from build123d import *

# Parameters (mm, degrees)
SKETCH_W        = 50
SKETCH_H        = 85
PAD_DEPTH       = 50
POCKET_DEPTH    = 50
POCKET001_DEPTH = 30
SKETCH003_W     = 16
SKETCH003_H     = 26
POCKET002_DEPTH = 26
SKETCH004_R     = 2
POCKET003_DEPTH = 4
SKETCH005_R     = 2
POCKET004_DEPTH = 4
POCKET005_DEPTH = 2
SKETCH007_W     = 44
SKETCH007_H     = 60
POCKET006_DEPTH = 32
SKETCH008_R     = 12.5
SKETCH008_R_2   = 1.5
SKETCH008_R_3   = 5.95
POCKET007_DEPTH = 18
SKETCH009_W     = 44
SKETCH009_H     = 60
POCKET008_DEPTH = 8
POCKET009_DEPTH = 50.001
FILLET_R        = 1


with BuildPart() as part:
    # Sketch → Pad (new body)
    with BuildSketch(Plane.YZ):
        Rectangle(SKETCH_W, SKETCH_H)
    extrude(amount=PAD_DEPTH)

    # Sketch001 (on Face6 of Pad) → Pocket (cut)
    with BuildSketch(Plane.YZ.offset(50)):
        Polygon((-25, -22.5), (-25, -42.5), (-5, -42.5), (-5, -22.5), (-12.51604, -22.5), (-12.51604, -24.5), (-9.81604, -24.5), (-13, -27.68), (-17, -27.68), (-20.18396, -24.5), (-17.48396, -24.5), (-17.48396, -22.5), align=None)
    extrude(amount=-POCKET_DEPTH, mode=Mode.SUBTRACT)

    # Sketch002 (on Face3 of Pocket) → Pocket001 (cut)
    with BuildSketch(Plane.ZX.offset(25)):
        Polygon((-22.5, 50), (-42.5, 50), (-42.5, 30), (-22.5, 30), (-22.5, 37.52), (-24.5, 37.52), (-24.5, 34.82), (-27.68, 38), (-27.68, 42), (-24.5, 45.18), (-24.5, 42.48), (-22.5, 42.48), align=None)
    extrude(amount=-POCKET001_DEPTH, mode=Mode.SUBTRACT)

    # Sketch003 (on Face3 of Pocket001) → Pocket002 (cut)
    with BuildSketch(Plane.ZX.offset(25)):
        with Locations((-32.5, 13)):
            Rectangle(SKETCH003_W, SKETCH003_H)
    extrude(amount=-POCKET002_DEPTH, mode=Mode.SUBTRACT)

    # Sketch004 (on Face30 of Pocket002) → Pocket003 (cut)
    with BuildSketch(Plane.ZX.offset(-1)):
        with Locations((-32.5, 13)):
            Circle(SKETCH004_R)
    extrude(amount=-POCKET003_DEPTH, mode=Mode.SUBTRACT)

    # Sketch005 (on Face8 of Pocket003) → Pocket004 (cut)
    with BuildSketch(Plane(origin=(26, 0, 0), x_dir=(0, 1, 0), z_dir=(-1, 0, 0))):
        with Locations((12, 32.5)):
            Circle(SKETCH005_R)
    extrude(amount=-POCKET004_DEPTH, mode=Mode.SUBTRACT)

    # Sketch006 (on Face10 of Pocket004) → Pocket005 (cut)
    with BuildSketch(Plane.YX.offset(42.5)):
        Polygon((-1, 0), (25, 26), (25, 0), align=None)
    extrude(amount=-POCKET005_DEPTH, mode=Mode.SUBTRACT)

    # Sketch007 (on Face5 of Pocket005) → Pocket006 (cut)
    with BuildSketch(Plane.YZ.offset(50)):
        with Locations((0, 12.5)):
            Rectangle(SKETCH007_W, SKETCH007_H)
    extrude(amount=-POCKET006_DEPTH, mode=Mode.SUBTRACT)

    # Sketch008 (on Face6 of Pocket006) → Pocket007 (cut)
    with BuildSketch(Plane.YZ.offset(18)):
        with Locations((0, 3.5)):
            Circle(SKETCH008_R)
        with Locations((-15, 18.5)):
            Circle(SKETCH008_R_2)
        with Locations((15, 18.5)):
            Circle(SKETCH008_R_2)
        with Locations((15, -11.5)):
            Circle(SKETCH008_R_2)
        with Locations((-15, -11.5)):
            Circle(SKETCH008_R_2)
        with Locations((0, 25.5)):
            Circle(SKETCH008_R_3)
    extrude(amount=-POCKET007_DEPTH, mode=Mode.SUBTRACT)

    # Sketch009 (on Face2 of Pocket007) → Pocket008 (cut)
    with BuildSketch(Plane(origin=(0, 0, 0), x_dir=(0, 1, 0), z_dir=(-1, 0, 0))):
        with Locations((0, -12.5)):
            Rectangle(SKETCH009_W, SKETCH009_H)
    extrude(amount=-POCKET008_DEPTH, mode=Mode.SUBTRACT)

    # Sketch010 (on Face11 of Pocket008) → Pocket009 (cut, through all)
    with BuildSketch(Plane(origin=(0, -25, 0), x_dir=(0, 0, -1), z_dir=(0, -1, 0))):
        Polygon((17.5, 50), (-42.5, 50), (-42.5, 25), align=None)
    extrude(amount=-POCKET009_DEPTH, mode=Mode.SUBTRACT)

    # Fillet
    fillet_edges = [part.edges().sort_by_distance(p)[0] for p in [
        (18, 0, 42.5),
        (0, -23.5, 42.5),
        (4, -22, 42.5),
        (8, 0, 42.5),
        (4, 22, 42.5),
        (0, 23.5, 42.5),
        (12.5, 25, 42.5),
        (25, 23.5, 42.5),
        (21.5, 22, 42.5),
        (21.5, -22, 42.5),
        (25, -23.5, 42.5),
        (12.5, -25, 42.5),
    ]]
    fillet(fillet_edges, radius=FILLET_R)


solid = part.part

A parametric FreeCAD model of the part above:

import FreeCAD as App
import Part
import Sketcher
Q = App.Units.Quantity


def edges_at(feature, points):
    """Names of the edges that pass closest to the given points."""
    edges = feature.Shape.Edges
    near = lambda p: min(range(len(edges)), key=lambda i: edges[i].distToShape(Part.Vertex(*p))[0])
    return sorted({f"Edge{near(p) + 1}" for p in points})


def add_polygon(sketch, points):
    """Adds a closed chain of lines whose ends are joined by coincident constraints."""
    first, n = sketch.GeometryCount, len(points)
    for a, b in zip(points, points[1:] + points[:1]):
        sketch.addGeometry(Part.LineSegment(App.Vector(*a, 0), App.Vector(*b, 0)), False)
    for i in range(n):
        sketch.addConstraint(Sketcher.Constraint("Coincident", first + i, 2, first + (i + 1) % n, 1))

doc = App.newDocument("Part")
body = doc.addObject("PartDesign::Body", "Body")

# Sketch on YZ plane
sketch1 = body.newObject("Sketcher::SketchObject", "Sketch")
sketch1.AttachmentSupport = (doc.getObject("YZ_Plane"), [""])
sketch1.MapMode = "FlatFace"
add_polygon(sketch1, [(-25, 42.5), (-25, -42.5), (25, -42.5), (25, 42.5)])  # lines 0-3
sketch1.addConstraint(Sketcher.Constraint("Vertical", 0))
sketch1.addConstraint(Sketcher.Constraint("Horizontal", 1))
sketch1.addConstraint(Sketcher.Constraint("Vertical", 2))
sketch1.addConstraint(Sketcher.Constraint("Horizontal", 3))
sketch1.addConstraint(Sketcher.Constraint("Symmetric", 0, 2, 2, 2, -1, 1))
sketch1.addConstraint(Sketcher.Constraint("DistanceX", 1, 1, 1, 2, Q("50 mm")))
sketch1.addConstraint(Sketcher.Constraint("DistanceY", 0, 2, 0, 1, Q("85 mm")))
pad1 = body.newObject("PartDesign::Pad", "Pad")
pad1.Profile = sketch1
pad1.Length = 50

# Sketch on YZ plane
sketch2 = body.newObject("Sketcher::SketchObject", "Sketch001")
sketch2.AttachmentSupport = (doc.getObject("YZ_Plane"), [""])
sketch2.MapMode = "FlatFace"
sketch2.AttachmentOffset = App.Placement(App.Vector(0, 0, 50), App.Rotation())
add_polygon(sketch2, [(-25, -22.5), (-25, -42.5), (-5, -42.5), (-5, -22.5), (-12.51604, -22.5), (-12.51604, -24.5), (-9.81604, -24.5), (-13, -27.68), (-17, -27.68), (-20.18396, -24.5), (-17.48396, -24.5), (-17.48396, -22.5)])  # lines 0-11
sketch2.addConstraint(Sketcher.Constraint("Vertical", 0))
sketch2.addConstraint(Sketcher.Constraint("Horizontal", 1))
sketch2.addConstraint(Sketcher.Constraint("Vertical", 2))
sketch2.addConstraint(Sketcher.Constraint("Horizontal", 3))
sketch2.addConstraint(Sketcher.Constraint("Vertical", 4))
sketch2.addConstraint(Sketcher.Constraint("Horizontal", 5))
sketch2.addConstraint(Sketcher.Constraint("Horizontal", 7))
sketch2.addConstraint(Sketcher.Constraint("Horizontal", 9))
sketch2.addConstraint(Sketcher.Constraint("Vertical", 10))
sketch2.addConstraint(Sketcher.Constraint("Horizontal", 11))
sketch2.addConstraint(Sketcher.Constraint("Horizontal", 5, 2, 8, 2))
sketch2.addConstraint(Sketcher.Constraint("Horizontal", 3, 2, 10, 2))
sketch2.addConstraint(Sketcher.Constraint("Equal", 5, 9))
sketch2.addConstraint(Sketcher.Constraint("Equal", 3, 11))
sketch2.addConstraint(Sketcher.Constraint("Equal", 1, 0))
sketch2.addConstraint(Sketcher.Constraint("Equal", 6, 8))
sketch2.addConstraint(Sketcher.Constraint("DistanceX", 1, 1, 1, 2, Q("20 mm")))
sketch2.addConstraint(Sketcher.Constraint("DistanceX", 7, 2, 7, 1, Q("4 mm")))
sketch2.addConstraint(Sketcher.Constraint("DistanceY", 4, 2, 4, 1, Q("2 mm")))
sketch2.addConstraint(Sketcher.Constraint("DistanceX", 5, 1, 5, 2, Q("2.7 mm")))
sketch2.addConstraint(Sketcher.Constraint("DistanceX", 0, 2, -1, 1, Q("25 mm")))
sketch2.addConstraint(Sketcher.Constraint("Distance", 6, Q("4.5 mm")))
sketch2.addConstraint(Sketcher.Constraint("DistanceY", 0, 2, -1, 1, Q("42.5 mm")))
sketch2.addConstraint(Sketcher.Constraint("DistanceY", 6, 2, -1, 1, Q("27.68 mm")))
pocket1 = body.newObject("PartDesign::Pocket", "Pocket")
pocket1.Profile = sketch2
pocket1.Length = 50

# Sketch on XZ plane
sketch3 = body.newObject("Sketcher::SketchObject", "Sketch002")
sketch3.AttachmentSupport = (doc.getObject("XZ_Plane"), [""])
sketch3.MapMode = "FlatFace"
sketch3.AttachmentOffset = App.Placement(App.Vector(0, 0, -25), App.Rotation())
add_polygon(sketch3, [(50, -22.5), (50, -42.5), (30, -42.5), (30, -22.5), (37.52, -22.5), (37.52, -24.5), (34.82, -24.5), (38, -27.68), (42, -27.68), (45.18, -24.5), (42.48, -24.5), (42.48, -22.5)])  # lines 0-11
sketch3.addConstraint(Sketcher.Constraint("Vertical", 0))
sketch3.addConstraint(Sketcher.Constraint("Horizontal", 1))
sketch3.addConstraint(Sketcher.Constraint("Vertical", 2))
sketch3.addConstraint(Sketcher.Constraint("Horizontal", 3))
sketch3.addConstraint(Sketcher.Constraint("Vertical", 4))
sketch3.addConstraint(Sketcher.Constraint("Horizontal", 5))
sketch3.addConstraint(Sketcher.Constraint("Horizontal", 7))
sketch3.addConstraint(Sketcher.Constraint("Horizontal", 9))
sketch3.addConstraint(Sketcher.Constraint("Vertical", 10))
sketch3.addConstraint(Sketcher.Constraint("Horizontal", 11))
sketch3.addConstraint(Sketcher.Constraint("Perpendicular", 6, 8))
sketch3.addConstraint(Sketcher.Constraint("Horizontal", 5, 2, 8, 2))
sketch3.addConstraint(Sketcher.Constraint("Horizontal", 3, 2, 10, 2))
sketch3.addConstraint(Sketcher.Constraint("Equal", 5, 9))
sketch3.addConstraint(Sketcher.Constraint("Equal", 3, 11))
sketch3.addConstraint(Sketcher.Constraint("Equal", 1, 0))
sketch3.addConstraint(Sketcher.Constraint("Equal", 6, 8))
sketch3.addConstraint(Sketcher.Constraint("DistanceX", 1, 2, 1, 1, Q("20 mm")))
sketch3.addConstraint(Sketcher.Constraint("DistanceX", 7, 1, 7, 2, Q("4 mm")))
sketch3.addConstraint(Sketcher.Constraint("DistanceY", 4, 2, 4, 1, Q("2 mm")))
sketch3.addConstraint(Sketcher.Constraint("DistanceX", 5, 2, 5, 1, Q("2.7 mm")))
sketch3.addConstraint(Sketcher.Constraint("DistanceX", -1, 1, 0, 2, Q("50 mm")))
sketch3.addConstraint(Sketcher.Constraint("DistanceX", 3, 1, 3, 2, Q("7.52 mm")))
sketch3.addConstraint(Sketcher.Constraint("DistanceY", 0, 2, -1, 1, Q("42.5 mm")))
pocket2 = body.newObject("PartDesign::Pocket", "Pocket001")
pocket2.Profile = sketch3
pocket2.Length = 30
pocket2.Reversed = True

# Sketch on XZ plane
sketch4 = body.newObject("Sketcher::SketchObject", "Sketch003")
sketch4.AttachmentSupport = (doc.getObject("XZ_Plane"), [""])
sketch4.MapMode = "FlatFace"
sketch4.AttachmentOffset = App.Placement(App.Vector(0, 0, -25), App.Rotation())
add_polygon(sketch4, [(26, -40.5), (0, -40.5), (0, -24.5), (26, -24.5)])  # lines 0-3
sketch4.addConstraint(Sketcher.Constraint("Horizontal", 0))
sketch4.addConstraint(Sketcher.Constraint("Vertical", 1))
sketch4.addConstraint(Sketcher.Constraint("Horizontal", 2))
sketch4.addConstraint(Sketcher.Constraint("Vertical", 3))
sketch4.addConstraint(Sketcher.Constraint("PointOnObject", 0, 2, -2))
sketch4.addConstraint(Sketcher.Constraint("DistanceX", 0, 2, 0, 1, Q("26 mm")))
sketch4.addConstraint(Sketcher.Constraint("DistanceY", 1, 1, 1, 2, Q("16 mm")))
sketch4.addConstraint(Sketcher.Constraint("DistanceY", 0, 2, -1, 1, Q("40.5 mm")))
pocket3 = body.newObject("PartDesign::Pocket", "Pocket002")
pocket3.Profile = sketch4
pocket3.Length = 26
pocket3.Reversed = True

# Sketch on XZ plane
sketch5 = body.newObject("Sketcher::SketchObject", "Sketch004")
sketch5.AttachmentSupport = (doc.getObject("XZ_Plane"), [""])
sketch5.MapMode = "FlatFace"
sketch5.AttachmentOffset = App.Placement(App.Vector(0, 0, 1), App.Rotation())
sketch5.addGeometry(Part.Circle(App.Vector(13, -32.5, 0), App.Vector(0, 0, 1), 2), False)
sketch5.addConstraint(Sketcher.Constraint("Diameter", 0, Q("4 mm")))
sketch5.addConstraint(Sketcher.Constraint("DistanceX", -1, 1, 0, 3, Q("13 mm")))
sketch5.addConstraint(Sketcher.Constraint("DistanceY", 0, 3, -1, 1, Q("32.5 mm")))
pocket4 = body.newObject("PartDesign::Pocket", "Pocket003")
pocket4.Profile = sketch5
pocket4.Length = 4
pocket4.Reversed = True

# Sketch on YZ plane
sketch6 = body.newObject("Sketcher::SketchObject", "Sketch005")
sketch6.AttachmentSupport = (doc.getObject("YZ_Plane"), [""])
sketch6.MapMode = "FlatFace"
sketch6.AttachmentOffset = App.Placement(App.Vector(0, 0, 26), App.Rotation())
sketch6.addGeometry(Part.Circle(App.Vector(12, -32.5, 0), App.Vector(0, 0, 1), 2), False)
sketch6.addConstraint(Sketcher.Constraint("Diameter", 0, Q("4 mm")))
sketch6.addConstraint(Sketcher.Constraint("DistanceX", -1, 1, 0, 3, Q("12 mm")))
sketch6.addConstraint(Sketcher.Constraint("DistanceY", 0, 3, -1, 1, Q("32.5 mm")))
pocket5 = body.newObject("PartDesign::Pocket", "Pocket004")
pocket5.Profile = sketch6
pocket5.Length = 4
pocket5.Reversed = True

# Sketch on XY plane
sketch7 = body.newObject("Sketcher::SketchObject", "Sketch006")
sketch7.AttachmentSupport = (doc.getObject("XY_Plane"), [""])
sketch7.MapMode = "FlatFace"
sketch7.AttachmentOffset = App.Placement(App.Vector(0, 0, -42.5), App.Rotation())
add_polygon(sketch7, [(26, 25), (0, -1), (0, 25)])  # lines 0-2
sketch7.addConstraint(Sketcher.Constraint("Vertical", 1))
sketch7.addConstraint(Sketcher.Constraint("Horizontal", 2))
sketch7.addConstraint(Sketcher.Constraint("PointOnObject", 0, 2, -2))
sketch7.addConstraint(Sketcher.Constraint("Equal", 2, 1))
sketch7.addConstraint(Sketcher.Constraint("DistanceX", 2, 1, 2, 2, Q("26 mm")))
sketch7.addConstraint(Sketcher.Constraint("DistanceY", 0, 2, -1, 1, Q("1 mm")))
pocket6 = body.newObject("PartDesign::Pocket", "Pocket005")
pocket6.Profile = sketch7
pocket6.Length = 2
pocket6.Reversed = True

# Sketch on YZ plane
sketch8 = body.newObject("Sketcher::SketchObject", "Sketch007")
sketch8.AttachmentSupport = (doc.getObject("YZ_Plane"), [""])
sketch8.MapMode = "FlatFace"
sketch8.AttachmentOffset = App.Placement(App.Vector(0, 0, 50), App.Rotation())
add_polygon(sketch8, [(-22, 42.5), (-22, -17.5), (22, -17.5), (22, 42.5)])  # lines 0-3
sketch8.addConstraint(Sketcher.Constraint("Vertical", 0))
sketch8.addConstraint(Sketcher.Constraint("Horizontal", 1))
sketch8.addConstraint(Sketcher.Constraint("Vertical", 2))
sketch8.addConstraint(Sketcher.Constraint("Horizontal", 3))
sketch8.addConstraint(Sketcher.Constraint("DistanceX", 1, 1, 1, 2, Q("44 mm")))
sketch8.addConstraint(Sketcher.Constraint("DistanceY", 0, 2, 0, 1, Q("60 mm")))
sketch8.addConstraint(Sketcher.Constraint("DistanceX", 0, 2, -1, 1, Q("22 mm")))
sketch8.addConstraint(Sketcher.Constraint("DistanceY", 0, 2, -1, 1, Q("17.5 mm")))
pocket7 = body.newObject("PartDesign::Pocket", "Pocket006")
pocket7.Profile = sketch8
pocket7.Length = 32

# Sketch on YZ plane
sketch9 = body.newObject("Sketcher::SketchObject", "Sketch008")
sketch9.AttachmentSupport = (doc.getObject("YZ_Plane"), [""])
sketch9.MapMode = "FlatFace"
sketch9.AttachmentOffset = App.Placement(App.Vector(0, 0, 18), App.Rotation())
sketch9.addGeometry(Part.Circle(App.Vector(0, 3.5, 0), App.Vector(0, 0, 1), 12.5), False)
sketch9.addGeometry(Part.Circle(App.Vector(-15, 18.5, 0), App.Vector(0, 0, 1), 1.5), False)
sketch9.addGeometry(Part.Circle(App.Vector(15, 18.5, 0), App.Vector(0, 0, 1), 1.5), False)
sketch9.addGeometry(Part.Circle(App.Vector(15, -11.5, 0), App.Vector(0, 0, 1), 1.5), False)
sketch9.addGeometry(Part.Circle(App.Vector(-15, -11.5, 0), App.Vector(0, 0, 1), 1.5), False)
sketch9.addGeometry(Part.Circle(App.Vector(0, 25.5, 0), App.Vector(0, 0, 1), 5.95), False)
sketch9.addConstraint(Sketcher.Constraint("Equal", 1, 2))
sketch9.addConstraint(Sketcher.Constraint("Equal", 2, 3))
sketch9.addConstraint(Sketcher.Constraint("Equal", 3, 4))
sketch9.addConstraint(Sketcher.Constraint("Symmetric", 1, 3, 2, 3, -2))
sketch9.addConstraint(Sketcher.Constraint("Symmetric", 3, 3, 4, 3, -2))
sketch9.addConstraint(Sketcher.Constraint("PointOnObject", 0, 3, -2))
sketch9.addConstraint(Sketcher.Constraint("PointOnObject", 5, 3, -2))
sketch9.addConstraint(Sketcher.Constraint("Vertical", 2, 3, 3, 3))
sketch9.addConstraint(Sketcher.Constraint("Diameter", 0, Q("25 mm")))
sketch9.addConstraint(Sketcher.Constraint("Diameter", 1, Q("3 mm")))
sketch9.addConstraint(Sketcher.Constraint("Diameter", 5, Q("11.9 mm")))
sketch9.addConstraint(Sketcher.Constraint("DistanceX", 1, 3, -1, 1, Q("15 mm")))
sketch9.addConstraint(Sketcher.Constraint("DistanceY", 0, 3, 1, 3, Q("15 mm")))
sketch9.addConstraint(Sketcher.Constraint("DistanceY", 3, 3, 0, 3, Q("15 mm")))
sketch9.addConstraint(Sketcher.Constraint("DistanceY", 1, 3, 5, 3, Q("7 mm")))
sketch9.addConstraint(Sketcher.Constraint("DistanceY", -1, 1, 0, 3, Q("3.5 mm")))
pocket8 = body.newObject("PartDesign::Pocket", "Pocket007")
pocket8.Profile = sketch9
pocket8.Length = 18

# Sketch on YZ plane
sketch10 = body.newObject("Sketcher::SketchObject", "Sketch009")
sketch10.AttachmentSupport = (doc.getObject("YZ_Plane"), [""])
sketch10.MapMode = "FlatFace"
add_polygon(sketch10, [(-22, -17.5), (-22, 42.5), (22, 42.5), (22, -17.5)])  # lines 0-3
sketch10.addConstraint(Sketcher.Constraint("Vertical", 0))
sketch10.addConstraint(Sketcher.Constraint("Horizontal", 1))
sketch10.addConstraint(Sketcher.Constraint("Vertical", 2))
sketch10.addConstraint(Sketcher.Constraint("Horizontal", 3))
sketch10.addConstraint(Sketcher.Constraint("DistanceX", 1, 1, 1, 2, Q("44 mm")))
sketch10.addConstraint(Sketcher.Constraint("DistanceY", 0, 1, 0, 2, Q("60 mm")))
sketch10.addConstraint(Sketcher.Constraint("DistanceX", 0, 2, -1, 1, Q("22 mm")))
sketch10.addConstraint(Sketcher.Constraint("DistanceY", -1, 1, 0, 2, Q("42.5 mm")))
pocket9 = body.newObject("PartDesign::Pocket", "Pocket008")
pocket9.Profile = sketch10
pocket9.Length = 8
pocket9.Reversed = True

# Sketch on XZ plane
sketch11 = body.newObject("Sketcher::SketchObject", "Sketch010")
sketch11.AttachmentSupport = (doc.getObject("XZ_Plane"), [""])
sketch11.MapMode = "FlatFace"
sketch11.AttachmentOffset = App.Placement(App.Vector(0, 0, 25), App.Rotation())
add_polygon(sketch11, [(50, -17.5), (50, 42.5), (25, 42.5)])  # lines 0-2
sketch11.addConstraint(Sketcher.Constraint("Vertical", 0))
sketch11.addConstraint(Sketcher.Constraint("Horizontal", 1))
sketch11.addConstraint(Sketcher.Constraint("DistanceX", 1, 2, 1, 1, Q("25 mm")))
sketch11.addConstraint(Sketcher.Constraint("DistanceY", 0, 1, 0, 2, Q("60 mm")))
sketch11.addConstraint(Sketcher.Constraint("DistanceX", -1, 1, 0, 2, Q("50 mm")))
sketch11.addConstraint(Sketcher.Constraint("DistanceY", -1, 1, 0, 2, Q("42.5 mm")))
pocket10 = body.newObject("PartDesign::Pocket", "Pocket009")
pocket10.Profile = sketch11
pocket10.Type = "ThroughAll"
doc.recompute()

fillet = body.newObject("PartDesign::Fillet", "Fillet")
fillet.Base = (pocket10, edges_at(pocket10, [
    (18, 0, 42.5),
    (0, -23.5, 42.5),
    (4, -22, 42.5),
    (8, 0, 42.5),
    (4, 22, 42.5),
    (0, 23.5, 42.5),
    (12.5, 25, 42.5),
    (25, 23.5, 42.5),
    (21.5, 22, 42.5),
    (21.5, -22, 42.5),
    (25, -23.5, 42.5),
    (12.5, -25, 42.5),
]))
fillet.Radius = 1

doc.recompute()
